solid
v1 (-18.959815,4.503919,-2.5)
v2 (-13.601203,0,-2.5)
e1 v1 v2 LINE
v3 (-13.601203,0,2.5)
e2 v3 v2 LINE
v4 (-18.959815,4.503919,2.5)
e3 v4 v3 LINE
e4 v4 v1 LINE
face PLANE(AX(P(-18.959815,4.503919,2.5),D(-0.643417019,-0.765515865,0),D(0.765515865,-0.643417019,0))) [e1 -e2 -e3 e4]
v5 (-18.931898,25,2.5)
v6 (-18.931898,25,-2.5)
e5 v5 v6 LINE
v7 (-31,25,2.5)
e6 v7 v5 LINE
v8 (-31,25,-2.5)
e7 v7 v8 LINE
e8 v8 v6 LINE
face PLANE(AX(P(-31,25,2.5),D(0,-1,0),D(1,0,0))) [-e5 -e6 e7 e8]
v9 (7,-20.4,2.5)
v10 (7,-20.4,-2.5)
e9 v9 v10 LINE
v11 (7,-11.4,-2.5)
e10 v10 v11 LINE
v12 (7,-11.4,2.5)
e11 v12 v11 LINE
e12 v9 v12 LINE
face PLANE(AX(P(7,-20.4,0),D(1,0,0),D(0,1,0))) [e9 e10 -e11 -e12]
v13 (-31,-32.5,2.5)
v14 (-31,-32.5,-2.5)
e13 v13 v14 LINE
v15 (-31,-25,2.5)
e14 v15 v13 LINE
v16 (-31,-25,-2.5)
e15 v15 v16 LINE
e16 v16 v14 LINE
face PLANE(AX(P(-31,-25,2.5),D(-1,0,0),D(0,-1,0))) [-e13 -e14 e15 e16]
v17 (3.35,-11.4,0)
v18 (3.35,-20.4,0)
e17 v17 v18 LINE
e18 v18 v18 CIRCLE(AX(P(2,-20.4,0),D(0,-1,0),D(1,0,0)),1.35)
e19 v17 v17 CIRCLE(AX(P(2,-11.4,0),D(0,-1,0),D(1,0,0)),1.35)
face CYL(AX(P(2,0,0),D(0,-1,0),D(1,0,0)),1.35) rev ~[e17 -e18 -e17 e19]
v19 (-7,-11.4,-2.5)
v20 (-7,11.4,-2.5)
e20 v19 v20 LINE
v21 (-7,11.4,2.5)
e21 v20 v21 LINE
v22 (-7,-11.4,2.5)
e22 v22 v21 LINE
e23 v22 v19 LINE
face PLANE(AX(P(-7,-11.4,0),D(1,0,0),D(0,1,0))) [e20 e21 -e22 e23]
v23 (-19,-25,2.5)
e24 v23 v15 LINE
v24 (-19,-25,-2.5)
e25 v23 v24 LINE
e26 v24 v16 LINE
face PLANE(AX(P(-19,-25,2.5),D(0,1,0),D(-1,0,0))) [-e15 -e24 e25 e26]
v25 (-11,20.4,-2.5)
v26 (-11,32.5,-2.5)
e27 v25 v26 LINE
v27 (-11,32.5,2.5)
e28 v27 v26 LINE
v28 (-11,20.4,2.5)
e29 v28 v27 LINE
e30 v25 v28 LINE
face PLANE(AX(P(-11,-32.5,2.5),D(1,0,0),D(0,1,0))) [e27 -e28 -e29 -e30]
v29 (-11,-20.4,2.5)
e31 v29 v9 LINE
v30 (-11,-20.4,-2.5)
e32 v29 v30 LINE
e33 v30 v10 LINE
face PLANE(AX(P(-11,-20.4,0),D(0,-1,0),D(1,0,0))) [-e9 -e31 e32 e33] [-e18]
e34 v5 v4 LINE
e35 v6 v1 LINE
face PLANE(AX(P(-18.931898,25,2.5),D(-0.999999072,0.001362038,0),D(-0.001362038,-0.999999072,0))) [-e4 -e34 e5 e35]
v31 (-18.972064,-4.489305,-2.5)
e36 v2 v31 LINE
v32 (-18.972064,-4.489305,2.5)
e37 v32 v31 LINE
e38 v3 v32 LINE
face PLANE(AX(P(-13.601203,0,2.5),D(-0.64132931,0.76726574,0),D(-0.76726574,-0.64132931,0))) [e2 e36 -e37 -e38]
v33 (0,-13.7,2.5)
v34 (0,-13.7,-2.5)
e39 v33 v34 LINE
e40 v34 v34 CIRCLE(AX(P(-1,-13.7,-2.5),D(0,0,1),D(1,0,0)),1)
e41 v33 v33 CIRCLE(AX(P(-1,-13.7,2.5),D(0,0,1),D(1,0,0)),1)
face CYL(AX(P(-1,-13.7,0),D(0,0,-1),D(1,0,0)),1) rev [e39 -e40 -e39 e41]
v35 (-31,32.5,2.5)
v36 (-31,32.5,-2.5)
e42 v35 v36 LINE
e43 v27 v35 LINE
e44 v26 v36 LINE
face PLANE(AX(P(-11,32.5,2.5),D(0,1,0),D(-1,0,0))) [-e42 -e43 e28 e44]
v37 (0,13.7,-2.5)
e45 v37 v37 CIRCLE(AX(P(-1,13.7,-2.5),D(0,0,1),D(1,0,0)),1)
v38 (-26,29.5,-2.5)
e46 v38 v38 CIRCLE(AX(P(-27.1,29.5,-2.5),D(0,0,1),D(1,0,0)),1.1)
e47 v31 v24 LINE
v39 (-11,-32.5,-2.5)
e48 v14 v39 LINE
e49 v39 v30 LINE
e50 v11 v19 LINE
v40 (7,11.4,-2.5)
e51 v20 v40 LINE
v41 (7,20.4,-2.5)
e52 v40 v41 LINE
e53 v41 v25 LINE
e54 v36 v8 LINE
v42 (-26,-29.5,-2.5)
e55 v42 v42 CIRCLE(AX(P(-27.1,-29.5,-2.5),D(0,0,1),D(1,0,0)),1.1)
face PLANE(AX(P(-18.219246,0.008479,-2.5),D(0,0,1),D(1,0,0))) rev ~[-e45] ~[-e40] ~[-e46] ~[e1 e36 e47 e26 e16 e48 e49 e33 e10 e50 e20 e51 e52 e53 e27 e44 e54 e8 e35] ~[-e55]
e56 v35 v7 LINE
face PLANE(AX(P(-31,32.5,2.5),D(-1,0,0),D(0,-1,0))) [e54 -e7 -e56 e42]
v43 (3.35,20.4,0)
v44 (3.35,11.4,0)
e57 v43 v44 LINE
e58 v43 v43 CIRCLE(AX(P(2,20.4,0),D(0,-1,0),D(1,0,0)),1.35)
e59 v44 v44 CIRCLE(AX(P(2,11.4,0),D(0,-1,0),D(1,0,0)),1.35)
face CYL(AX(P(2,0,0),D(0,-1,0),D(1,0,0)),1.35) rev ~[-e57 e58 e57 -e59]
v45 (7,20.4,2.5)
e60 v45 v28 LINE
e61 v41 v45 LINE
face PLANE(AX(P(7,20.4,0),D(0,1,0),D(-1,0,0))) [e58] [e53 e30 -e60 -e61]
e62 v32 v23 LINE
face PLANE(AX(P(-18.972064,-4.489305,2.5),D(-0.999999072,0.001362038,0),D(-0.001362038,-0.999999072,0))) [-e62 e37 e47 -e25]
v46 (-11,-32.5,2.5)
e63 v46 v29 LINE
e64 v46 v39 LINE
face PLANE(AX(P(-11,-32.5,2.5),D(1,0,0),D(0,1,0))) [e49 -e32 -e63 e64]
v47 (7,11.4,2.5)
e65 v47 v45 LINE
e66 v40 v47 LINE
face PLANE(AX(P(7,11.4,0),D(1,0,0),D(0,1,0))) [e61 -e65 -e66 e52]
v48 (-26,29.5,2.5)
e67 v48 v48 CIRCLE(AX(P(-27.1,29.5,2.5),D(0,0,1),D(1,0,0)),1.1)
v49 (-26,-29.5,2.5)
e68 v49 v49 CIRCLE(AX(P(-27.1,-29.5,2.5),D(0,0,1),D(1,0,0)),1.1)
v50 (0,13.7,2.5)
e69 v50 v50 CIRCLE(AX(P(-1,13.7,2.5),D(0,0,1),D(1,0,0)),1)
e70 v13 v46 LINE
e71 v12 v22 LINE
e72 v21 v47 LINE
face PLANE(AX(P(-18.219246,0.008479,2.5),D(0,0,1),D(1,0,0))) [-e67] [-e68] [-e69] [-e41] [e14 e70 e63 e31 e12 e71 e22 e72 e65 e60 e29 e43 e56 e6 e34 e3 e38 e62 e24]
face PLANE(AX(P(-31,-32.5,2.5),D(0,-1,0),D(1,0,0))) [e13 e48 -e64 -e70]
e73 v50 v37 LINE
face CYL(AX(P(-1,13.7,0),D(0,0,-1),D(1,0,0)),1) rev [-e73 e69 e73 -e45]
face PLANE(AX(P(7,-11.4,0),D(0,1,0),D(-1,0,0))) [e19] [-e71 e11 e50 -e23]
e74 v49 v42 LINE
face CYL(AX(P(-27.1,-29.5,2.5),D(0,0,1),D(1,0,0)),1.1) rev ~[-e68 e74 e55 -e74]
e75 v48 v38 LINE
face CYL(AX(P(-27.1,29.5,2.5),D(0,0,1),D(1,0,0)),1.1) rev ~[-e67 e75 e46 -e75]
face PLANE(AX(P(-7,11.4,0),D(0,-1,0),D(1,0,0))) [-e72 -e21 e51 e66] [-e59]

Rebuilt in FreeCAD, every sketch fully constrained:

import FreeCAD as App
import Part
import Sketcher

V = App.Vector

doc = App.newDocument("Part")
body = doc.addObject("PartDesign::Body", "Body")

# Sketch on XY plane
sketch1 = body.newObject("Sketcher::SketchObject", "Sketch")
sketch1.AttachmentSupport = (doc.getObject("XY_Plane"), [""])
sketch1.MapMode = "FlatFace"
sketch1.addGeometry(Part.LineSegment(V(-7, -11.4, 0), V(-7, 11.4, 0)), False)
sketch1.addGeometry(Part.LineSegment(V(-7, 11.4, 0), V(7, 11.4, 0)), False)
sketch1.addGeometry(Part.LineSegment(V(7, 11.4, 0), V(7, 20.4, 0)), False)
sketch1.addGeometry(Part.LineSegment(V(7, 20.4, 0), V(-11, 20.4, 0)), False)
sketch1.addGeometry(Part.LineSegment(V(-11, 20.4, 0), V(-11, -20.4, 0)), False)
sketch1.addGeometry(Part.LineSegment(V(-11, -20.4, 0), V(7, -20.4, 0)), False)
sketch1.addGeometry(Part.LineSegment(V(7, -20.4, 0), V(7, -11.4, 0)), False)
sketch1.addGeometry(Part.LineSegment(V(7, -11.4, 0), V(-7, -11.4, 0)), False)
sketch1.addGeometry(Part.Circle(V(-1, -13.7, 0), V(0, 0, 1), 1), False)
sketch1.addGeometry(Part.Circle(V(-1, 13.7, 0), V(0, 0, 1), 1), False)
sketch1.addConstraint(Sketcher.Constraint("Coincident", 0, 2, 1, 1))
sketch1.addConstraint(Sketcher.Constraint("Coincident", 1, 2, 2, 1))
sketch1.addConstraint(Sketcher.Constraint("Coincident", 2, 2, 3, 1))
sketch1.addConstraint(Sketcher.Constraint("Coincident", 3, 2, 4, 1))
sketch1.addConstraint(Sketcher.Constraint("Coincident", 4, 2, 5, 1))
sketch1.addConstraint(Sketcher.Constraint("Coincident", 5, 2, 6, 1))
sketch1.addConstraint(Sketcher.Constraint("Coincident", 6, 2, 7, 1))
sketch1.addConstraint(Sketcher.Constraint("Coincident", 7, 2, 0, 1))
sketch1.addConstraint(Sketcher.Constraint("Vertical", 0))
sketch1.addConstraint(Sketcher.Constraint("Horizontal", 1))
sketch1.addConstraint(Sketcher.Constraint("Vertical", 2))
sketch1.addConstraint(Sketcher.Constraint("Horizontal", 3))
sketch1.addConstraint(Sketcher.Constraint("Vertical", 4))
sketch1.addConstraint(Sketcher.Constraint("Horizontal", 5))
sketch1.addConstraint(Sketcher.Constraint("Vertical", 6))
sketch1.addConstraint(Sketcher.Constraint("Horizontal", 7))
sketch1.addConstraint(Sketcher.Constraint("Equal", 8, 9))
sketch1.addConstraint(Sketcher.Constraint("Symmetric", 0, 2, 6, 2, -1, 1))
sketch1.addConstraint(Sketcher.Constraint("Symmetric", 8, 3, 9, 3, -1))
sketch1.addConstraint(Sketcher.Constraint("Symmetric", 2, 2, 5, 2, -1))
sketch1.addConstraint(Sketcher.Constraint("Diameter", 8, 2.0))
sketch1.addConstraint(Sketcher.Constraint("DistanceX", 1, 1, 1, 2, 14.0))
sketch1.addConstraint(Sketcher.Constraint("DistanceX", 3, 2, 3, 1, 18.0))
sketch1.addConstraint(Sketcher.Constraint("DistanceY", 2, 1, 2, 2, 9.0))
sketch1.addConstraint(Sketcher.Constraint("DistanceY", 0, 1, 0, 2, 22.8))
sketch1.addConstraint(Sketcher.Constraint("DistanceX", 8, 3, -1, 1, 1.0))
sketch1.addConstraint(Sketcher.Constraint("DistanceY", 8, 3, -1, 1, 13.7))
pad1 = body.newObject("PartDesign::Pad", "Pad")
pad1.Profile = sketch1
pad1.Length = 5
pad1.Midplane = True

# Sketch on XZ plane
sketch2 = body.newObject("Sketcher::SketchObject", "Sketch001")
sketch2.AttachmentSupport = (doc.getObject("XZ_Plane"), [""])
sketch2.MapMode = "FlatFace"
sketch2.addGeometry(Part.Circle(V(2, 0, 0), V(0, 0, 1), 1.4), False)
sketch2.addConstraint(Sketcher.Constraint("PointOnObject", 0, 3, -1))
sketch2.addConstraint(Sketcher.Constraint("Diameter", 0, 2.7))
sketch2.addConstraint(Sketcher.Constraint("DistanceX", -1, 1, 0, 3, 2.0))
pocket1 = body.newObject("PartDesign::Pocket", "Pocket")
pocket1.Profile = sketch2
pocket1.Length = 50
pocket1.Midplane = True

# Sketch on XY plane
sketch3 = body.newObject("Sketcher::SketchObject", "Sketch002")
sketch3.AttachmentSupport = (doc.getObject("XY_Plane"), [""])
sketch3.MapMode = "FlatFace"
sketch3.AttachmentOffset = App.Placement(V(0, 0, 2.5), App.Rotation())
sketch3.addGeometry(Part.LineSegment(V(-31, -25, 0), V(-31, -32, 0)), False)
sketch3.addGeometry(Part.LineSegment(V(-31, -32, 0), V(-11, -32, 0)), False)
sketch3.addGeometry(Part.LineSegment(V(-11, -32, 0), V(-11, 32, 0)), False)
sketch3.addGeometry(Part.LineSegment(V(-11, 32, 0), V(-31, 32, 0)), False)
sketch3.addGeometry(Part.LineSegment(V(-31, 32, 0), V(-31, 25, 0)), False)
sketch3.addGeometry(Part.LineSegment(V(-31, 25, 0), V(-19, 25, 0)), False)
sketch3.addGeometry(Part.LineSegment(V(-19, 25, 0), V(-19, 5, 0)), False)
sketch3.addGeometry(Part.LineSegment(V(-19, 5, 0), V(-14, 0, 0)), False)
sketch3.addGeometry(Part.LineSegment(V(-14, 0, 0), V(-19, -4, 0)), False)
sketch3.addGeometry(Part.LineSegment(V(-19, -4, 0), V(-19, -25, 0)), False)
sketch3.addGeometry(Part.LineSegment(V(-19, -25, 0), V(-31, -25, 0)), False)
sketch3.addConstraint(Sketcher.Constraint("Coincident", 0, 2, 1, 1))
sketch3.addConstraint(Sketcher.Constraint("Coincident", 1, 2, 2, 1))
sketch3.addConstraint(Sketcher.Constraint("Coincident", 2, 2, 3, 1))
sketch3.addConstraint(Sketcher.Constraint("Coincident", 3, 2, 4, 1))
sketch3.addConstraint(Sketcher.Constraint("Coincident", 4, 2, 5, 1))
sketch3.addConstraint(Sketcher.Constraint("Coincident", 5, 2, 6, 1))
sketch3.addConstraint(Sketcher.Constraint("Coincident", 6, 2, 7, 1))
sketch3.addConstraint(Sketcher.Constraint("Coincident", 7, 2, 8, 1))
sketch3.addConstraint(Sketcher.Constraint("Coincident", 8, 2, 9, 1))
sketch3.addConstraint(Sketcher.Constraint("Coincident", 9, 2, 10, 1))
sketch3.addConstraint(Sketcher.Constraint("Coincident", 10, 2, 0, 1))
sketch3.addConstraint(Sketcher.Constraint("Vertical", 0))
sketch3.addConstraint(Sketcher.Constraint("Horizontal", 1))
sketch3.addConstraint(Sketcher.Constraint("Vertical", 2))
sketch3.addConstraint(Sketcher.Constraint("Horizontal", 3))
sketch3.addConstraint(Sketcher.Constraint("Vertical", 4))
sketch3.addConstraint(Sketcher.Constraint("Horizontal", 5))
sketch3.addConstraint(Sketcher.Constraint("Horizontal", 10))
sketch3.addConstraint(Sketcher.Constraint("Symmetric", 0, 2, 3, 2, -1))
sketch3.addConstraint(Sketcher.Constraint("PointOnObject", 7, 2, -1))
sketch3.addConstraint(Sketcher.Constraint("Parallel", 6, 9))
sketch3.addConstraint(Sketcher.Constraint("Equal", 0, 4))
sketch3.addConstraint(Sketcher.Constraint("Equal", 7, 8))
sketch3.addConstraint(Sketcher.Constraint("DistanceX", 1, 1, 1, 2, 20.0))
sketch3.addConstraint(Sketcher.Constraint("DistanceX", 10, 2, 10, 1, 12.0))
sketch3.addConstraint(Sketcher.Constraint("DistanceY", 2, 1, 2, 2, 65.0))
sketch3.addConstraint(Sketcher.Constraint("Distance", 7, 7.0))
sketch3.addConstraint(Sketcher.Constraint("DistanceY", 0, 2, 0, 1, 7.5))
sketch3.addConstraint(Sketcher.Constraint("DistanceX", 0, 2, -1, 1, 31.0))
sketch3.addConstraint(Sketcher.Constraint("DistanceX", 5, 1, 5, 2, 12.068102))
sketch3.addConstraint(Sketcher.Constraint("Distance", 6, 20.4961))
sketch3.addConstraint(Sketcher.Constraint("DistanceX", 8, 2, 7, 2, 5.37086))
pad2 = body.newObject("PartDesign::Pad", "Pad001")
pad2.Profile = sketch3
pad2.Length = 5
pad2.Reversed = True

# Sketch on XY plane
sketch4 = body.newObject("Sketcher::SketchObject", "Sketch003")
sketch4.AttachmentSupport = (doc.getObject("XY_Plane"), [""])
sketch4.MapMode = "FlatFace"
sketch4.AttachmentOffset = App.Placement(V(0, 0, 2.5), App.Rotation())
sketch4.addGeometry(Part.Circle(V(-27.1, 29.5, 0), V(0, 0, 1), 1.1), False)
sketch4.addGeometry(Part.Circle(V(-27.1, -29.5, 0), V(0, 0, 1), 1.1), False)
sketch4.addConstraint(Sketcher.Constraint("Equal", 0, 1))
sketch4.addConstraint(Sketcher.Constraint("Symmetric", 0, 3, 1, 3, -1))
sketch4.addConstraint(Sketcher.Constraint("Diameter", 0, 2.2))
sketch4.addConstraint(Sketcher.Constraint("DistanceY", 1, 3, 0, 3, 59.0))
sketch4.addConstraint(Sketcher.Constraint("DistanceX", 0, 3, -1, 1, 27.1))
pocket2 = body.newObject("PartDesign::Pocket", "Pocket001")
pocket2.Profile = sketch4
pocket2.Type = "ThroughAll"

doc.recompute()
